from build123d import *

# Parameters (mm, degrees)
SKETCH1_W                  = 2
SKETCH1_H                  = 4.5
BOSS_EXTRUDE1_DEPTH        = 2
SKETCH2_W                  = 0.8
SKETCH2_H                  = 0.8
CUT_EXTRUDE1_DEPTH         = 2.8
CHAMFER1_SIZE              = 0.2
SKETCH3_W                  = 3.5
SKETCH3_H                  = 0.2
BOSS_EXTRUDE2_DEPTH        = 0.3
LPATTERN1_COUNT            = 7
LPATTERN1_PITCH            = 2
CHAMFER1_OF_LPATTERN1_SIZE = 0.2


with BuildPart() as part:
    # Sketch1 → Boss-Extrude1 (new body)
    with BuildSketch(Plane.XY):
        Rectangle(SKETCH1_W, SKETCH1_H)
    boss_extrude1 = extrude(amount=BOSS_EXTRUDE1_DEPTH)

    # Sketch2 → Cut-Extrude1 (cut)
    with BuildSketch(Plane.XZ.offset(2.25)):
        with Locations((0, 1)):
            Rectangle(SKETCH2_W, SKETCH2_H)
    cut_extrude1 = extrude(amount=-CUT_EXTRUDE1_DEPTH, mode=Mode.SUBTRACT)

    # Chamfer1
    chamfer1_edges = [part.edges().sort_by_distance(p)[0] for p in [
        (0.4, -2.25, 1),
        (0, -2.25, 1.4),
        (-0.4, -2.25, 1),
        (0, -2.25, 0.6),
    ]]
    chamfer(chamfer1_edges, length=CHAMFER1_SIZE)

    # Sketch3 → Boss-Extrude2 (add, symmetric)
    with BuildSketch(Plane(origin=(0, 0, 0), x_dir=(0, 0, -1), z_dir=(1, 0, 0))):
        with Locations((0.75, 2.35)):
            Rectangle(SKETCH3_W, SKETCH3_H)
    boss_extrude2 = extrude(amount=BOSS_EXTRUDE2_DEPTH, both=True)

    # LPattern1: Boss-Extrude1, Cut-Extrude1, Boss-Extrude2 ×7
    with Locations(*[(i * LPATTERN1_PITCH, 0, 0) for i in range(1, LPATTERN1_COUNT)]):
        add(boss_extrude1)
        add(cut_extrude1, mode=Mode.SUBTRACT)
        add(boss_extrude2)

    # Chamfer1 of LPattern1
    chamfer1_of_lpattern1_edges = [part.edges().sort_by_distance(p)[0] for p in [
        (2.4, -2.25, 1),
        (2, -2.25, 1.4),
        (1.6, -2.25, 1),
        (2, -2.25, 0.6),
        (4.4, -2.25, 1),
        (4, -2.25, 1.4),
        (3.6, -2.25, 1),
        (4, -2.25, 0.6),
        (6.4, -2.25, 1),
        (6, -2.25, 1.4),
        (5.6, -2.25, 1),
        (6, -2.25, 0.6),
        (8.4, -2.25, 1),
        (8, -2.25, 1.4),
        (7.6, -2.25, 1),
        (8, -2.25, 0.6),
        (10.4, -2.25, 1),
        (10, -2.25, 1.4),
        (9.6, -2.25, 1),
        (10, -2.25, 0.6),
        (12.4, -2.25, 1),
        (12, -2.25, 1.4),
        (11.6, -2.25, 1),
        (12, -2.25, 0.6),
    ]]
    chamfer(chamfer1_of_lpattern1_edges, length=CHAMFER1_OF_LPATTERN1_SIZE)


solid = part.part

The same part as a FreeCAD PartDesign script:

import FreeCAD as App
import Part
import Sketcher
from FreeCAD import Vector
Q = App.Units.Quantity


def edges_at(feature, points):
    """Names of the edges that pass closest to the given points."""
    edges = feature.Shape.Edges
    near = lambda p: min(range(len(edges)), key=lambda i: edges[i].distToShape(Part.Vertex(*p))[0])
    return sorted({f"Edge{near(p) + 1}" for p in points})

doc = App.newDocument("Part")
body = doc.addObject("PartDesign::Body", "Body")

sketch1 = doc.addObject("Sketcher::SketchObject", "Sketch")
body.addObject(sketch1)
sketch1.AttachmentSupport = (doc.XY_Plane, [""])
sketch1.MapMode = "FlatFace"
sketch1.addGeometry(Part.LineSegment(Vector(-1, 2.2, 0), Vector(-1, -2.2, 0)), False)
sketch1.addGeometry(Part.LineSegment(Vector(-1, -2.2, 0), Vector(1, -2.2, 0)), False)
sketch1.addGeometry(Part.LineSegment(Vector(1, -2.2, 0), Vector(1, 2.2, 0)), False)
sketch1.addGeometry(Part.LineSegment(Vector(1, 2.2, 0), Vector(-1, 2.2, 0)), False)
sketch1.addConstraint(Sketcher.Constraint("Coincident", 0, 2, 1, 1))
sketch1.addConstraint(Sketcher.Constraint("Coincident", 1, 2, 2, 1))
sketch1.addConstraint(Sketcher.Constraint("Coincident", 2, 2, 3, 1))
sketch1.addConstraint(Sketcher.Constraint("Coincident", 3, 2, 0, 1))
sketch1.addConstraint(Sketcher.Constraint("Vertical", 0))
sketch1.addConstraint(Sketcher.Constraint("Horizontal", 1))
sketch1.addConstraint(Sketcher.Constraint("Vertical", 2))
sketch1.addConstraint(Sketcher.Constraint("Horizontal", 3))
sketch1.addConstraint(Sketcher.Constraint("Symmetric", 0, 2, 2, 2, -1, 1))
sketch1.addConstraint(Sketcher.Constraint("DistanceX", 1, 1, 1, 2, Q("2 mm")))
sketch1.addConstraint(Sketcher.Constraint("DistanceY", 0, 2, 0, 1, Q("4.5 mm")))
pad1 = doc.addObject("PartDesign::Pad", "Pad")
body.addObject(pad1)
pad1.Profile = sketch1
pad1.Length = 2

sketch2 = doc.addObject("Sketcher::SketchObject", "Sketch001")
body.addObject(sketch2)
sketch2.AttachmentSupport = (doc.XZ_Plane, [""])
sketch2.MapMode = "FlatFace"
sketch2.AttachmentOffset = App.Placement(Vector(0, 0, 2.25), App.Rotation())
sketch2.addGeometry(Part.LineSegment(Vector(-0.4, 1.4, 0), Vector(-0.4, 0.6, 0)), False)
sketch2.addGeometry(Part.LineSegment(Vector(-0.4, 0.6, 0), Vector(0.4, 0.6, 0)), False)
sketch2.addGeometry(Part.LineSegment(Vector(0.4, 0.6, 0), Vector(0.4, 1.4, 0)), False)
sketch2.addGeometry(Part.LineSegment(Vector(0.4, 1.4, 0), Vector(-0.4, 1.4, 0)), False)
sketch2.addConstraint(Sketcher.Constraint("Coincident", 0, 2, 1, 1))
sketch2.addConstraint(Sketcher.Constraint("Coincident", 1, 2, 2, 1))
sketch2.addConstraint(Sketcher.Constraint("Coincident", 2, 2, 3, 1))
sketch2.addConstraint(Sketcher.Constraint("Coincident", 3, 2, 0, 1))
sketch2.addConstraint(Sketcher.Constraint("Vertical", 0))
sketch2.addConstraint(Sketcher.Constraint("Horizontal", 1))
sketch2.addConstraint(Sketcher.Constraint("Vertical", 2))
sketch2.addConstraint(Sketcher.Constraint("Horizontal", 3))
sketch2.addConstraint(Sketcher.Constraint("Equal", 3, 0))
sketch2.addConstraint(Sketcher.Constraint("DistanceX", 1, 1, 1, 2, Q("0.8 mm")))
sketch2.addConstraint(Sketcher.Constraint("DistanceX", 0, 2, -1, 1, Q("0.4 mm")))
sketch2.addConstraint(Sketcher.Constraint("DistanceY", -1, 1, 0, 2, Q("0.6 mm")))
pocket1 = doc.addObject("PartDesign::Pocket", "Pocket")
body.addObject(pocket1)
pocket1.Profile = sketch2
pocket1.Length = 2.8
doc.recompute()

chamfer = doc.addObject("PartDesign::Chamfer", "Chamfer")
body.addObject(chamfer)
chamfer.Base = (pocket1, edges_at(pocket1, [
    (0.4, -2.25, 1),
    (0, -2.25, 1.4),
    (-0.4, -2.25, 1),
    (0, -2.25, 0.6),
]))
chamfer.Size = 0.2

sketch3 = doc.addObject("Sketcher::SketchObject", "Sketch002")
body.addObject(sketch3)
sketch3.AttachmentSupport = (doc.YZ_Plane, [""])
sketch3.MapMode = "FlatFace"
sketch3.addGeometry(Part.LineSegment(Vector(2.45, 1, 0), Vector(2.25, 1, 0)), False)
sketch3.addGeometry(Part.LineSegment(Vector(2.25, 1, 0), Vector(2.25, -2.5, 0)), False)
sketch3.addGeometry(Part.LineSegment(Vector(2.25, -2.5, 0), Vector(2.45, -2.5, 0)), False)
sketch3.addGeometry(Part.LineSegment(Vector(2.45, -2.5, 0), Vector(2.45, 1, 0)), False)
sketch3.addConstraint(Sketcher.Constraint("Coincident", 0, 2, 1, 1))
sketch3.addConstraint(Sketcher.Constraint("Coincident", 1, 2, 2, 1))
sketch3.addConstraint(Sketcher.Constraint("Coincident", 2, 2, 3, 1))
sketch3.addConstraint(Sketcher.Constraint("Coincident", 3, 2, 0, 1))
sketch3.addConstraint(Sketcher.Constraint("Horizontal", 0))
sketch3.addConstraint(Sketcher.Constraint("Vertical", 1))
sketch3.addConstraint(Sketcher.Constraint("Horizontal", 2))
sketch3.addConstraint(Sketcher.Constraint("Vertical", 3))
sketch3.addConstraint(Sketcher.Constraint("DistanceX", 0, 2, 0, 1, Q("0.2 mm")))
sketch3.addConstraint(Sketcher.Constraint("DistanceY", 1, 2, 1, 1, Q("3.5 mm")))
sketch3.addConstraint(Sketcher.Constraint("DistanceY", -1, 1, 0, 2, Q("1 mm")))
sketch3.addConstraint(Sketcher.Constraint("DistanceX", -1, 1, 0, 2, Q("2.25 mm")))
pad2 = doc.addObject("PartDesign::Pad", "Pad001")
body.addObject(pad2)
pad2.Profile = sketch3
pad2.Length = 0.6
pad2.Midplane = True
doc.recompute()

linearpattern = doc.addObject("PartDesign::LinearPattern", "LinearPattern")
body.addObject(linearpattern)
linearpattern.Originals = [pad1, pocket1, pad2]
linearpattern.Direction = (doc.X_Axis, [""])
linearpattern.Mode = "offset"
linearpattern.Offset = 2
linearpattern.Occurrences = 7
body.Tip = linearpattern
doc.recompute()

chamfer2 = doc.addObject("PartDesign::Chamfer", "Chamfer001")
body.addObject(chamfer2)
chamfer2.Base = (linearpattern, edges_at(linearpattern, [
    (2.4, -2.25, 1),
    (2, -2.25, 1.4),
    (1.6, -2.25, 1),
    (2, -2.25, 0.6),
    (4.4, -2.25, 1),
    (4, -2.25, 1.4),
    (3.6, -2.25, 1),
    (4, -2.25, 0.6),
    (6.4, -2.25, 1),
    (6, -2.25, 1.4),
    (5.6, -2.25, 1),
    (6, -2.25, 0.6),
    (8.4, -2.25, 1),
    (8, -2.25, 1.4),
    (7.6, -2.25, 1),
    (8, -2.25, 0.6),
    (10.4, -2.25, 1),
    (10, -2.25, 1.4),
    (9.6, -2.25, 1),
    (10, -2.25, 0.6),
    (12.4, -2.25, 1),
    (12, -2.25, 1.4),
    (11.6, -2.25, 1),
    (12, -2.25, 0.6),
]))
chamfer2.Size = 0.2

doc.recompute()
